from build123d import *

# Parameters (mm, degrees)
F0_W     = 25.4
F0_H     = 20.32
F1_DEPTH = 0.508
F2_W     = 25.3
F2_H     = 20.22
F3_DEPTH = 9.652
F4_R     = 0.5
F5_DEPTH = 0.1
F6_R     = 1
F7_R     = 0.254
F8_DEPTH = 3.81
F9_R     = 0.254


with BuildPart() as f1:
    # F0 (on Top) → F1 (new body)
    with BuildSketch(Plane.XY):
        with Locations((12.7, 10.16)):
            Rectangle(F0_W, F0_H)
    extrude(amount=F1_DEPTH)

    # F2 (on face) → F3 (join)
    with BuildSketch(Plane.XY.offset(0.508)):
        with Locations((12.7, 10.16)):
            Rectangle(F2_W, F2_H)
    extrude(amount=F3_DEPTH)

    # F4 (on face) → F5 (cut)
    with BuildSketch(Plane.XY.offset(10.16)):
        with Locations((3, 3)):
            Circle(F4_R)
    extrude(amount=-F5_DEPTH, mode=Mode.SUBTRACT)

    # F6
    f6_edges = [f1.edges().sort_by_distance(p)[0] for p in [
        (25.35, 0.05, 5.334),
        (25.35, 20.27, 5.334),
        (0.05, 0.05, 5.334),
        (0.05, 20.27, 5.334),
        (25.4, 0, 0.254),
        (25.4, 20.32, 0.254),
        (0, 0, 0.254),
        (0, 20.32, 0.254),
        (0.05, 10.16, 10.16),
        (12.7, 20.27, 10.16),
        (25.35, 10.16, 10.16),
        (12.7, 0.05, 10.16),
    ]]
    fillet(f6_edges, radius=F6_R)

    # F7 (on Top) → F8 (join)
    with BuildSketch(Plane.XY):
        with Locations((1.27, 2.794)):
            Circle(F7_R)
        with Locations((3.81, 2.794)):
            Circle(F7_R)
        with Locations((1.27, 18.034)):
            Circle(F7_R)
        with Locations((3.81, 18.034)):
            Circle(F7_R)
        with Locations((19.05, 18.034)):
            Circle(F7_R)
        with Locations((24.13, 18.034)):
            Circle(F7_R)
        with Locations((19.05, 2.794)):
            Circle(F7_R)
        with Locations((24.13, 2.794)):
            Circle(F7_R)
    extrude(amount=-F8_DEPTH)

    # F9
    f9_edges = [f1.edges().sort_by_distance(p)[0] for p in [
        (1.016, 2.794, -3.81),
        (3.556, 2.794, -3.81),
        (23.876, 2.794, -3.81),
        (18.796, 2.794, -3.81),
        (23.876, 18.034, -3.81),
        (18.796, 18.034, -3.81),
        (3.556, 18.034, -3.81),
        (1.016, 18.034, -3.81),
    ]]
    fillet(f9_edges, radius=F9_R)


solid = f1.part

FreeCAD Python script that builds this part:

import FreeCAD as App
import Part
import Sketcher
from FreeCAD import Vector
Q = App.Units.Quantity


def edges_at(feature, points):
    """Names of the edges that pass closest to the given points."""
    edges = feature.Shape.Edges
    near = lambda p: min(range(len(edges)), key=lambda i: edges[i].distToShape(Part.Vertex(*p))[0])
    return sorted({f"Edge{near(p) + 1}" for p in points})


def add_polygon(sketch, points):
    """Adds a closed chain of lines whose ends are joined by coincident constraints."""
    first, n = sketch.GeometryCount, len(points)
    for a, b in zip(points, points[1:] + points[:1]):
        sketch.addGeometry(Part.LineSegment(App.Vector(*a, 0), App.Vector(*b, 0)), False)
    for i in range(n):
        sketch.addConstraint(Sketcher.Constraint("Coincident", first + i, 2, first + (i + 1) % n, 1))

doc = App.newDocument("Part")
params = doc.addObject("Spreadsheet::Sheet", "Params")
for row, (alias, value) in enumerate([
    ("sketch1_width", "1 in"),
    ("sketch1_height", "0.8 in"),
    ("pad1_length", "0.02 in"),
    ("pad2_length", "0.38 in"),
    ("pocket1_length", "0.1 mm"),
    ("fillet_radius", "1 mm"),
    ("sketch4_diameter", "0.02 in"),
    ("pad3_length", "0.15 in"),
    ("fillet2_radius", "0.01 in"),
], start=1):
    params.set(f"A{row}", alias)
    params.set(f"B{row}", "=" + value)
    params.setAlias(f"B{row}", alias)

body = doc.addObject("PartDesign::Body", "Body")

sketch1 = body.newObject("Sketcher::SketchObject", "Sketch")
sketch1.AttachmentSupport = (doc.getObject("XY_Plane"), [""])
sketch1.MapMode = "FlatFace"
add_polygon(sketch1, [(0, 20.32), (0, 0), (25.4, 0), (25.4, 20.32)])
sketch1.addConstraint([
    Sketcher.Constraint("Vertical", 0),
    Sketcher.Constraint("Horizontal", 1),
    Sketcher.Constraint("Vertical", 2),
    Sketcher.Constraint("Horizontal", 3),
    Sketcher.Constraint("Coincident", 0, 2, -1, 1),
    Sketcher.Constraint("DistanceX", 1, 1, 1, 2, Q("1 in")),
    Sketcher.Constraint("DistanceY", 0, 2, 0, 1, Q("0.8 in")),
])
sketch1.setExpression("Constraints[9]", "Params.sketch1_width")
sketch1.setExpression("Constraints[10]", "Params.sketch1_height")
pad1 = body.newObject("PartDesign::Pad", "Pad")
pad1.Profile = sketch1
pad1.setExpression("Length", "Params.pad1_length")

sketch2 = body.newObject("Sketcher::SketchObject", "Sketch001")
sketch2.AttachmentSupport = (doc.getObject("XY_Plane"), [""])
sketch2.MapMode = "FlatFace"
sketch2.AttachmentOffset = App.Placement(Vector(0, 0, 0.02 * 25.4), App.Rotation())
add_polygon(sketch2, [(0.05, 20.27), (0.05, 0.05), (25.35, 0.05), (25.35, 20.27)])
sketch2.addConstraint([
    Sketcher.Constraint("Vertical", 0),
    Sketcher.Constraint("Horizontal", 1),
    Sketcher.Constraint("Vertical", 2),
    Sketcher.Constraint("Horizontal", 3),
    Sketcher.Constraint("DistanceX", 1, 1, 1, 2, Q("25.3 mm")),
    Sketcher.Constraint("DistanceY", 0, 2, 0, 1, Q("20.22 mm")),
    Sketcher.Constraint("DistanceX", -1, 1, 0, 2, Q("0.05 mm")),
    Sketcher.Constraint("DistanceY", -1, 1, 0, 2, Q("0.05 mm")),
])
pad2 = body.newObject("PartDesign::Pad", "Pad001")
pad2.Profile = sketch2
pad2.setExpression("Length", "Params.pad2_length")

sketch3 = body.newObject("Sketcher::SketchObject", "Sketch002")
sketch3.AttachmentSupport = (doc.getObject("XY_Plane"), [""])
sketch3.MapMode = "FlatFace"
sketch3.AttachmentOffset = App.Placement(Vector(0, 0, 0.4 * 25.4), App.Rotation())
sketch3.addGeometry(Part.Circle(Vector(3, 3, 0), Vector(0, 0, 1), 0.5), False)
sketch3.addConstraint([
    Sketcher.Constraint("Diameter", 0, Q("1 mm")),
    Sketcher.Constraint("DistanceX", -1, 1, 0, 3, Q("3 mm")),
    Sketcher.Constraint("DistanceY", -1, 1, 0, 3, Q("3 mm")),
])
pocket1 = body.newObject("PartDesign::Pocket", "Pocket")
pocket1.Profile = sketch3
pocket1.setExpression("Length", "Params.pocket1_length")
doc.recompute()

fillet = body.newObject("PartDesign::Fillet", "Fillet")
fillet.Base = (pocket1, edges_at(pocket1, [
    (25.35, 0.05, 5.334),
    (25.35, 20.27, 5.334),
    (0.05, 0.05, 5.334),
    (0.05, 20.27, 5.334),
    (25.4, 0, 0.254),
    (25.4, 20.32, 0.254),
    (0, 0, 0.254),
    (0, 20.32, 0.254),
    (0.05, 10.16, 10.16),
    (12.7, 20.27, 10.16),
    (25.35, 10.16, 10.16),
    (12.7, 0.05, 10.16),
]))
fillet.setExpression("Radius", "Params.fillet_radius")

sketch4 = body.newObject("Sketcher::SketchObject", "Sketch003")
sketch4.AttachmentSupport = (doc.getObject("XY_Plane"), [""])
sketch4.MapMode = "FlatFace"
sketch4.addGeometry([
    Part.Circle(Vector(1.27, 2.794, 0), Vector(0, 0, 1), 0.254),
    Part.Circle(Vector(3.81, 2.794, 0), Vector(0, 0, 1), 0.254),
    Part.Circle(Vector(1.27, 18.034, 0), Vector(0, 0, 1), 0.254),
    Part.Circle(Vector(3.81, 18.034, 0), Vector(0, 0, 1), 0.254),
    Part.Circle(Vector(19.05, 18.034, 0), Vector(0, 0, 1), 0.254),
    Part.Circle(Vector(24.13, 18.034, 0), Vector(0, 0, 1), 0.254),
    Part.Circle(Vector(19.05, 2.794, 0), Vector(0, 0, 1), 0.254),
    Part.Circle(Vector(24.13, 2.794, 0), Vector(0, 0, 1), 0.254),
], False)
sketch4.addConstraint([
    Sketcher.Constraint("Equal", 0, 1),
    Sketcher.Constraint("Equal", 1, 2),
    Sketcher.Constraint("Equal", 2, 3),
    Sketcher.Constraint("Equal", 3, 4),
    Sketcher.Constraint("Equal", 4, 5),
    Sketcher.Constraint("Equal", 5, 6),
    Sketcher.Constraint("Equal", 6, 7),
    Sketcher.Constraint("Horizontal", 0, 3, 1, 3),
    Sketcher.Constraint("Horizontal", 2, 3, 3, 3),
    Sketcher.Constraint("Horizontal", 3, 3, 4, 3),
    Sketcher.Constraint("Horizontal", 4, 3, 5, 3),
    Sketcher.Constraint("Horizontal", 1, 3, 6, 3),
    Sketcher.Constraint("Horizontal", 6, 3, 7, 3),
    Sketcher.Constraint("Vertical", 0, 3, 2, 3),
    Sketcher.Constraint("Vertical", 1, 3, 3, 3),
    Sketcher.Constraint("Vertical", 4, 3, 6, 3),
    Sketcher.Constraint("Vertical", 5, 3, 7, 3),
    Sketcher.Constraint("Diameter", 0, Q("0.02 in")),
    Sketcher.Constraint("DistanceX", 0, 3, 1, 3, Q("0.1 in")),
    Sketcher.Constraint("DistanceY", 0, 3, 2, 3, Q("0.6 in")),
    Sketcher.Constraint("DistanceX", 3, 3, 4, 3, Q("0.6 in")),
    Sketcher.Constraint("DistanceX", 4, 3, 5, 3, Q("0.2 in")),
    Sketcher.Constraint("DistanceX", -1, 1, 0, 3, Q("0.05 in")),
    Sketcher.Constraint("DistanceY", -1, 1, 0, 3, Q("0.11 in")),
])
sketch4.setExpression("Constraints[17]", "Params.sketch4_diameter")
pad3 = body.newObject("PartDesign::Pad", "Pad002")
pad3.Profile = sketch4
pad3.setExpression("Length", "Params.pad3_length")
pad3.Reversed = True
doc.recompute()

fillet2 = body.newObject("PartDesign::Fillet", "Fillet001")
fillet2.Base = (pad3, edges_at(pad3, [
    (1.016, 2.794, -3.81),
    (3.556, 2.794, -3.81),
    (23.876, 2.794, -3.81),
    (18.796, 2.794, -3.81),
    (23.876, 18.034, -3.81),
    (18.796, 18.034, -3.81),
    (3.556, 18.034, -3.81),
    (1.016, 18.034, -3.81),
]))
fillet2.setExpression("Radius", "Params.fillet2_radius")

doc.recompute()
